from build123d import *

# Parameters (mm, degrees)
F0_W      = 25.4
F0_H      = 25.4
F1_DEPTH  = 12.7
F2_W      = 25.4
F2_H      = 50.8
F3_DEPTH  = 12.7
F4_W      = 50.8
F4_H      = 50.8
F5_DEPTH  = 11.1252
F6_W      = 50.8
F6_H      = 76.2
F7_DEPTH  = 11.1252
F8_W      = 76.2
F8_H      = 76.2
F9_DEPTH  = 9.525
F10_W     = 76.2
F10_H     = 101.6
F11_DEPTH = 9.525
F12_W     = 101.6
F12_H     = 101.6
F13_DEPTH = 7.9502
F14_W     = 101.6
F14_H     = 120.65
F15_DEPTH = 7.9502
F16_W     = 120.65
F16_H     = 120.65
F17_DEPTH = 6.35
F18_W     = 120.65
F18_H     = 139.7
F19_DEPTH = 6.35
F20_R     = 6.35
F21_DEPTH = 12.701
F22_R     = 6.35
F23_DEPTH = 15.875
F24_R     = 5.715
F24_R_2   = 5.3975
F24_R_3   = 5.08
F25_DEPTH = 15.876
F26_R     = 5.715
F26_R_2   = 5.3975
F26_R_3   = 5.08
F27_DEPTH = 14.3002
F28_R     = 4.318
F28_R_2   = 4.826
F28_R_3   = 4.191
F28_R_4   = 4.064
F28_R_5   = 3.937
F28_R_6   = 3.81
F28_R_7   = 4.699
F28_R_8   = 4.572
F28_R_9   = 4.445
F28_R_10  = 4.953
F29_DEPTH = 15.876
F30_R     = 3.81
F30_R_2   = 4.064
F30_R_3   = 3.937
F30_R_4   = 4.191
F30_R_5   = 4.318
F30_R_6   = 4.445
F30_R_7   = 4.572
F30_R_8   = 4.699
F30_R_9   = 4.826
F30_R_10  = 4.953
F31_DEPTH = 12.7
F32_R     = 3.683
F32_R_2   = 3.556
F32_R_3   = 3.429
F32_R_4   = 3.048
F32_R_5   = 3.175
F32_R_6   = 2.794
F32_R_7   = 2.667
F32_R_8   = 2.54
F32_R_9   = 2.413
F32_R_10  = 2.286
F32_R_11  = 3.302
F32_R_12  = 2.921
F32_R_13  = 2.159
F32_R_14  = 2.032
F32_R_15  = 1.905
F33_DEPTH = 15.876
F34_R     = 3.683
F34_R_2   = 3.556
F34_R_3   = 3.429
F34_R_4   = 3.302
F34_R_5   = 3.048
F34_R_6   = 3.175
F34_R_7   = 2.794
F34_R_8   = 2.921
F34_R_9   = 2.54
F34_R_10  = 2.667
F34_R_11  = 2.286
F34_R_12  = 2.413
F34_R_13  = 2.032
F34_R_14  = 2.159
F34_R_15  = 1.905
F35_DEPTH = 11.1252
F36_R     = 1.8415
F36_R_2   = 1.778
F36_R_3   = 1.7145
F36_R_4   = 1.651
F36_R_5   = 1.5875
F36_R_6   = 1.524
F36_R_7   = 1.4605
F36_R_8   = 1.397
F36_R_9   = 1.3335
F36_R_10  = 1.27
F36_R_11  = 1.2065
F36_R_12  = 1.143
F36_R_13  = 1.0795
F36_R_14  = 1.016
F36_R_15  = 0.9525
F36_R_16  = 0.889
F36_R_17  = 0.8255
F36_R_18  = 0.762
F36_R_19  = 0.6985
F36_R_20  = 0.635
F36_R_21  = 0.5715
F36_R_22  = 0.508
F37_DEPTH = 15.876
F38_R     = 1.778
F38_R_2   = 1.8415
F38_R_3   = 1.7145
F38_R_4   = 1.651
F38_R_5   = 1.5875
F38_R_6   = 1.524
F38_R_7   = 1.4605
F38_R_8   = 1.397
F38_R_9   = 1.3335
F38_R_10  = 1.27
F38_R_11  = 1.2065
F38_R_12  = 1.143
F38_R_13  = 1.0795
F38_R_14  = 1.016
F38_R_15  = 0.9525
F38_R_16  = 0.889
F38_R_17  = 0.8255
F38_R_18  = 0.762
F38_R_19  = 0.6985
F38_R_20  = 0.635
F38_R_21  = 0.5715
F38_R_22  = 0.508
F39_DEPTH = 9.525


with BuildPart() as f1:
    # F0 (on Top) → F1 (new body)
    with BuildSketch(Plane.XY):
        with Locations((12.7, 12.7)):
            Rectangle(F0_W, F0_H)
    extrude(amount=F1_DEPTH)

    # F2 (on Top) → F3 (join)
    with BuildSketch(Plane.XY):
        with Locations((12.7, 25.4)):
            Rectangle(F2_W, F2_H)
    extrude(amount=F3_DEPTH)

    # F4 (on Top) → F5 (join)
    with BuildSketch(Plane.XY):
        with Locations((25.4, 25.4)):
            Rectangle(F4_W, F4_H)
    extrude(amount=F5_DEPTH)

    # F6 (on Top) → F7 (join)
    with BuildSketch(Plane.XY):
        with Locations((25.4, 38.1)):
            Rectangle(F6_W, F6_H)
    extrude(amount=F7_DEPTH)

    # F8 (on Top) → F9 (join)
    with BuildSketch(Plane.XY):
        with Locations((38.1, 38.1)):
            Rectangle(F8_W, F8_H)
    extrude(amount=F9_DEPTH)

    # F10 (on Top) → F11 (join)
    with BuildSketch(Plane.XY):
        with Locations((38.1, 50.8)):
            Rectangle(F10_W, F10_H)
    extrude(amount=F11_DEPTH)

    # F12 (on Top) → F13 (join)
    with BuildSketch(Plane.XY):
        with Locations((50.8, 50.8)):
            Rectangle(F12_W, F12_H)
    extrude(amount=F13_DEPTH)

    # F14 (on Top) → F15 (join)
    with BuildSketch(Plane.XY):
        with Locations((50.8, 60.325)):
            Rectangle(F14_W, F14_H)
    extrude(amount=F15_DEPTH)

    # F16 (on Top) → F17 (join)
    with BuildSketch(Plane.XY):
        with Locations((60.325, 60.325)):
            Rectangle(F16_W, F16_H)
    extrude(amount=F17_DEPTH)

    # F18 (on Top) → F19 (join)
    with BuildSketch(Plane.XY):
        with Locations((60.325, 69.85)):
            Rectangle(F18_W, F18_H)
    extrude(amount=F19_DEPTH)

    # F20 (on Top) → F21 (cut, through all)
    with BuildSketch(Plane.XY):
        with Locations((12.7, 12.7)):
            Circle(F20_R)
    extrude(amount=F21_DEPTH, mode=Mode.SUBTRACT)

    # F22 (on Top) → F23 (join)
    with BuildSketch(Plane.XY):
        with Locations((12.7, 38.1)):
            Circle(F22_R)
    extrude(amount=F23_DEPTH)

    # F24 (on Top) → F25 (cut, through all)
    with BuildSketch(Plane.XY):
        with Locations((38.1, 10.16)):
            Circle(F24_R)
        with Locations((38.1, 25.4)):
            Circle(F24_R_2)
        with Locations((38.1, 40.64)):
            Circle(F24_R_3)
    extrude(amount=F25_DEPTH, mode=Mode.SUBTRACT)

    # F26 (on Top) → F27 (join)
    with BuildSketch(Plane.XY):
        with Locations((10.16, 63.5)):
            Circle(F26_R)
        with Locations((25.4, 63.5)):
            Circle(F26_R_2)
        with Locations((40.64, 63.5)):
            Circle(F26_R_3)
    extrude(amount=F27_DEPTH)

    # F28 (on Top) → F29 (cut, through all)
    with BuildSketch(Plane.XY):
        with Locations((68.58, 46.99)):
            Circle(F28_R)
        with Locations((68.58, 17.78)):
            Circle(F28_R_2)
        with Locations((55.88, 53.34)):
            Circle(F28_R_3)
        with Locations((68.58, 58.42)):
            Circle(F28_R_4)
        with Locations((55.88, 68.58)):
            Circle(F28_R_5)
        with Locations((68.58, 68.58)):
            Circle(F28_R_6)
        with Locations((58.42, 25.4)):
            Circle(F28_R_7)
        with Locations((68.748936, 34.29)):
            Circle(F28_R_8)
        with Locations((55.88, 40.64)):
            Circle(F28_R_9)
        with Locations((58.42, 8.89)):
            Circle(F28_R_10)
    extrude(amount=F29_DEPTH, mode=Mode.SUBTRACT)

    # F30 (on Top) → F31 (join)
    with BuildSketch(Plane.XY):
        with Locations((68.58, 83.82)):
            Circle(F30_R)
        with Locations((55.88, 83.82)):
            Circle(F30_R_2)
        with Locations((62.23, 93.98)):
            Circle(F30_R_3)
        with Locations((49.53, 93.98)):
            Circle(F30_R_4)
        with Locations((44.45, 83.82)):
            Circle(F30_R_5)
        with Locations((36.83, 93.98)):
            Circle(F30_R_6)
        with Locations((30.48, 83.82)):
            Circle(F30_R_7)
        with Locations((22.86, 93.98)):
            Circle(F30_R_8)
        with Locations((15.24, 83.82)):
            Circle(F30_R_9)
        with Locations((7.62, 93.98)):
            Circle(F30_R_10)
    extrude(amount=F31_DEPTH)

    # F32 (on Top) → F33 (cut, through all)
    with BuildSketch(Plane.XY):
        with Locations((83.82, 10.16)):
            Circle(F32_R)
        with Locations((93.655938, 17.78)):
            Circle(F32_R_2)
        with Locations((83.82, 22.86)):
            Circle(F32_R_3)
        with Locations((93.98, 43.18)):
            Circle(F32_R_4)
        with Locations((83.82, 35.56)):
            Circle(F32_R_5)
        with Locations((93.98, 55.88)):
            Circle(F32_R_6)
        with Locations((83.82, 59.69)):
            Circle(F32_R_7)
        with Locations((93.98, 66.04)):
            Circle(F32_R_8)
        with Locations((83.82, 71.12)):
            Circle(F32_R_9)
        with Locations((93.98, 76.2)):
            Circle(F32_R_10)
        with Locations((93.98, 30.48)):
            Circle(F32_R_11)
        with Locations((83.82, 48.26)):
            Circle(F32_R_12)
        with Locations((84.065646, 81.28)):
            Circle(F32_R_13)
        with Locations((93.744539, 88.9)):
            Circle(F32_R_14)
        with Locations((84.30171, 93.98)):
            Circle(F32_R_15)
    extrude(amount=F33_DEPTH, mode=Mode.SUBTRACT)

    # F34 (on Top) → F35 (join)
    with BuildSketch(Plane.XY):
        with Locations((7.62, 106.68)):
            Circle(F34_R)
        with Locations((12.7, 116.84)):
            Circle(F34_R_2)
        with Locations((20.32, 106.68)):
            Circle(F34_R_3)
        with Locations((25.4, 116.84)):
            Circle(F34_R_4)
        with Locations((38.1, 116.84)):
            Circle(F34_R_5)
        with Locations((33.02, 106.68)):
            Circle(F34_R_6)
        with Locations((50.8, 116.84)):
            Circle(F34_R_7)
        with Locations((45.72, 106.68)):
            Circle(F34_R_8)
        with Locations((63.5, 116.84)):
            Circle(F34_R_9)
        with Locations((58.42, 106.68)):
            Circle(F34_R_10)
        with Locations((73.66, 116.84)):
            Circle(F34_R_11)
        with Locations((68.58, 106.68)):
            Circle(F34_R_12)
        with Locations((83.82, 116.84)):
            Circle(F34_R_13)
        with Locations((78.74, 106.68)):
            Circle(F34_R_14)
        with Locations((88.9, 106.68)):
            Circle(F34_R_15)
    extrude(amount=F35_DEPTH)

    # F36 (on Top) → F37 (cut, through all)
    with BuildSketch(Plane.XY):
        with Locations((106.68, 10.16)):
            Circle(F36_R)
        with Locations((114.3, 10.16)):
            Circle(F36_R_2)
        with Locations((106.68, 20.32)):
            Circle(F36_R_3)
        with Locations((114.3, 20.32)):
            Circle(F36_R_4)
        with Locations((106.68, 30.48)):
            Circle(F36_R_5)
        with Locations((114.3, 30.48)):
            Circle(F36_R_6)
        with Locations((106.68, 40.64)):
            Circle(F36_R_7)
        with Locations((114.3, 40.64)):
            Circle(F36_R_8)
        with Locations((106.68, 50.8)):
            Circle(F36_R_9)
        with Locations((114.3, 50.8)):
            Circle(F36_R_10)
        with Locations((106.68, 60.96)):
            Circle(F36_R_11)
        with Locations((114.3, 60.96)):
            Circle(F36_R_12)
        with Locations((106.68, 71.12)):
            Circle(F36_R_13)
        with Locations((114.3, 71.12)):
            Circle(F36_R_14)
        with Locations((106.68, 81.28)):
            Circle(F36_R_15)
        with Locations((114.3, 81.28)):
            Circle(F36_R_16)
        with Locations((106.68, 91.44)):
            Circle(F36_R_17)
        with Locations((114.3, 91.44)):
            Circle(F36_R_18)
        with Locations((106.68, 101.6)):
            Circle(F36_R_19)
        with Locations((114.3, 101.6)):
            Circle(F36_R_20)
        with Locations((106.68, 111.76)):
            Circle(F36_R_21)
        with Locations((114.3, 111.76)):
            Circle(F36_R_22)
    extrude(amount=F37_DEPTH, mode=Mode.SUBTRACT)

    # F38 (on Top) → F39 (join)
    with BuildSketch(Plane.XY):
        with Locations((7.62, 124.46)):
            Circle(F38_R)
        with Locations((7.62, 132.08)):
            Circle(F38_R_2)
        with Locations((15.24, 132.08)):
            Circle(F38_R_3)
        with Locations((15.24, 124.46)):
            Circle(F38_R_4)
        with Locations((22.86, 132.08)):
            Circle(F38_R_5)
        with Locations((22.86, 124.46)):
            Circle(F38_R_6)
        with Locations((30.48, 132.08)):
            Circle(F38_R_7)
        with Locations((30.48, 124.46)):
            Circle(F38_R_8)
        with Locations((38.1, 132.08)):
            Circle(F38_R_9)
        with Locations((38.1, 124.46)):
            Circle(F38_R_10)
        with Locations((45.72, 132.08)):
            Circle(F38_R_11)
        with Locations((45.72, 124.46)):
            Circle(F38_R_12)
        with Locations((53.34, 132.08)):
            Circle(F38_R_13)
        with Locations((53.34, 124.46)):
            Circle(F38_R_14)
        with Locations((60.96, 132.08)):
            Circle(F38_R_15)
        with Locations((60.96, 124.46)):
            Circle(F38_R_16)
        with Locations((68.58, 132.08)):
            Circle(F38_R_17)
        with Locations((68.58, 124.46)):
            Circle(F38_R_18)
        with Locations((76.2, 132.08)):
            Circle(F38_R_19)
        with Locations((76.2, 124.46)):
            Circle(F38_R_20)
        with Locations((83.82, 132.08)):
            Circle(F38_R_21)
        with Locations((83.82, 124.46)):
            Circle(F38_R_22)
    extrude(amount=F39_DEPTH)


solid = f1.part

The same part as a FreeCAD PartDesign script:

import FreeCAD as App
import Part
import Sketcher

V = App.Vector
Q = App.Units.Quantity

doc = App.newDocument("Part")
body = doc.addObject("PartDesign::Body", "Body")

# Sketch on XY plane
sketch1 = doc.addObject("Sketcher::SketchObject", "Sketch")
body.addObject(sketch1)
sketch1.AttachmentSupport = (doc.XY_Plane, [""])
sketch1.MapMode = "FlatFace"
sketch1.addGeometry([
    Part.LineSegment(V(0, 25.4, 0), V(0, 0, 0)),
    Part.LineSegment(V(0, 0, 0), V(25.4, 0, 0)),
    Part.LineSegment(V(25.4, 0, 0), V(25.4, 25.4, 0)),
    Part.LineSegment(V(25.4, 25.4, 0), V(0, 25.4, 0)),
], False)
sketch1.addConstraint([
    Sketcher.Constraint("Coincident", 0, 2, 1, 1),
    Sketcher.Constraint("Coincident", 1, 2, 2, 1),
    Sketcher.Constraint("Coincident", 2, 2, 3, 1),
    Sketcher.Constraint("Coincident", 3, 2, 0, 1),
    Sketcher.Constraint("Vertical", 0),
    Sketcher.Constraint("Horizontal", 1),
    Sketcher.Constraint("Vertical", 2),
    Sketcher.Constraint("Horizontal", 3),
    Sketcher.Constraint("Coincident", 0, 2, -1, 1),
    Sketcher.Constraint("Equal", 3, 0),
    Sketcher.Constraint("DistanceX", 1, 1, 1, 2, Q("1 in")),
])
pad1 = doc.addObject("PartDesign::Pad", "Pad")
body.addObject(pad1)
pad1.Profile = sketch1
pad1.Length = Q("0.5 in")

# Sketch on XY plane
sketch2 = doc.addObject("Sketcher::SketchObject", "Sketch001")
body.addObject(sketch2)
sketch2.AttachmentSupport = (doc.XY_Plane, [""])
sketch2.MapMode = "FlatFace"
sketch2.addGeometry([
    Part.LineSegment(V(0, 50.8, 0), V(0, 0, 0)),
    Part.LineSegment(V(0, 0, 0), V(25.4, 0, 0)),
    Part.LineSegment(V(25.4, 0, 0), V(25.4, 50.8, 0)),
    Part.LineSegment(V(25.4, 50.8, 0), V(0, 50.8, 0)),
], False)
sketch2.addConstraint([
    Sketcher.Constraint("Coincident", 0, 2, 1, 1),
    Sketcher.Constraint("Coincident", 1, 2, 2, 1),
    Sketcher.Constraint("Coincident", 2, 2, 3, 1),
    Sketcher.Constraint("Coincident", 3, 2, 0, 1),
    Sketcher.Constraint("Vertical", 0),
    Sketcher.Constraint("Horizontal", 1),
    Sketcher.Constraint("Vertical", 2),
    Sketcher.Constraint("Horizontal", 3),
    Sketcher.Constraint("Coincident", 0, 2, -1, 1),
    Sketcher.Constraint("DistanceX", 1, 1, 1, 2, Q("1 in")),
    Sketcher.Constraint("DistanceY", 0, 2, 0, 1, Q("2 in")),
])
pad2 = doc.addObject("PartDesign::Pad", "Pad001")
body.addObject(pad2)
pad2.Profile = sketch2
pad2.Length = Q("0.5 in")

# Sketch on XY plane
sketch3 = doc.addObject("Sketcher::SketchObject", "Sketch002")
body.addObject(sketch3)
sketch3.AttachmentSupport = (doc.XY_Plane, [""])
sketch3.MapMode = "FlatFace"
sketch3.addGeometry([
    Part.LineSegment(V(0, 50.8, 0), V(0, 0, 0)),
    Part.LineSegment(V(0, 0, 0), V(50.8, 0, 0)),
    Part.LineSegment(V(50.8, 0, 0), V(50.8, 50.8, 0)),
    Part.LineSegment(V(50.8, 50.8, 0), V(0, 50.8, 0)),
], False)
sketch3.addConstraint([
    Sketcher.Constraint("Coincident", 0, 2, 1, 1),
    Sketcher.Constraint("Coincident", 1, 2, 2, 1),
    Sketcher.Constraint("Coincident", 2, 2, 3, 1),
    Sketcher.Constraint("Coincident", 3, 2, 0, 1),
    Sketcher.Constraint("Vertical", 0),
    Sketcher.Constraint("Horizontal", 1),
    Sketcher.Constraint("Vertical", 2),
    Sketcher.Constraint("Horizontal", 3),
    Sketcher.Constraint("Coincident", 0, 2, -1, 1),
    Sketcher.Constraint("Equal", 3, 0),
    Sketcher.Constraint("DistanceX", 1, 1, 1, 2, Q("2 in")),
])
pad3 = doc.addObject("PartDesign::Pad", "Pad002")
body.addObject(pad3)
pad3.Profile = sketch3
pad3.Length = Q("0.438 in")

# Sketch on XY plane
sketch4 = doc.addObject("Sketcher::SketchObject", "Sketch003")
body.addObject(sketch4)
sketch4.AttachmentSupport = (doc.XY_Plane, [""])
sketch4.MapMode = "FlatFace"
sketch4.addGeometry([
    Part.LineSegment(V(0, 76.2, 0), V(0, 0, 0)),
    Part.LineSegment(V(0, 0, 0), V(50.8, 0, 0)),
    Part.LineSegment(V(50.8, 0, 0), V(50.8, 76.2, 0)),
    Part.LineSegment(V(50.8, 76.2, 0), V(0, 76.2, 0)),
], False)
sketch4.addConstraint([
    Sketcher.Constraint("Coincident", 0, 2, 1, 1),
    Sketcher.Constraint("Coincident", 1, 2, 2, 1),
    Sketcher.Constraint("Coincident", 2, 2, 3, 1),
    Sketcher.Constraint("Coincident", 3, 2, 0, 1),
    Sketcher.Constraint("Vertical", 0),
    Sketcher.Constraint("Horizontal", 1),
    Sketcher.Constraint("Vertical", 2),
    Sketcher.Constraint("Horizontal", 3),
    Sketcher.Constraint("Coincident", 0, 2, -1, 1),
    Sketcher.Constraint("DistanceX", 1, 1, 1, 2, Q("2 in")),
    Sketcher.Constraint("DistanceY", 0, 2, 0, 1, Q("3 in")),
])
pad4 = doc.addObject("PartDesign::Pad", "Pad003")
body.addObject(pad4)
pad4.Profile = sketch4
pad4.Length = Q("0.438 in")

# Sketch on XY plane
sketch5 = doc.addObject("Sketcher::SketchObject", "Sketch004")
body.addObject(sketch5)
sketch5.AttachmentSupport = (doc.XY_Plane, [""])
sketch5.MapMode = "FlatFace"
sketch5.addGeometry([
    Part.LineSegment(V(0, 76.2, 0), V(0, 0, 0)),
    Part.LineSegment(V(0, 0, 0), V(76.2, 0, 0)),
    Part.LineSegment(V(76.2, 0, 0), V(76.2, 76.2, 0)),
    Part.LineSegment(V(76.2, 76.2, 0), V(0, 76.2, 0)),
], False)
sketch5.addConstraint([
    Sketcher.Constraint("Coincident", 0, 2, 1, 1),
    Sketcher.Constraint("Coincident", 1, 2, 2, 1),
    Sketcher.Constraint("Coincident", 2, 2, 3, 1),
    Sketcher.Constraint("Coincident", 3, 2, 0, 1),
    Sketcher.Constraint("Vertical", 0),
    Sketcher.Constraint("Horizontal", 1),
    Sketcher.Constraint("Vertical", 2),
    Sketcher.Constraint("Horizontal", 3),
    Sketcher.Constraint("Coincident", 0, 2, -1, 1),
    Sketcher.Constraint("Equal", 3, 0),
    Sketcher.Constraint("DistanceX", 1, 1, 1, 2, Q("3 in")),
])
pad5 = doc.addObject("PartDesign::Pad", "Pad004")
body.addObject(pad5)
pad5.Profile = sketch5
pad5.Length = Q("0.375 in")

# Sketch on XY plane
sketch6 = doc.addObject("Sketcher::SketchObject", "Sketch005")
body.addObject(sketch6)
sketch6.AttachmentSupport = (doc.XY_Plane, [""])
sketch6.MapMode = "FlatFace"
sketch6.addGeometry([
    Part.LineSegment(V(0, 101.6, 0), V(0, 0, 0)),
    Part.LineSegment(V(0, 0, 0), V(76.2, 0, 0)),
    Part.LineSegment(V(76.2, 0, 0), V(76.2, 101.6, 0)),
    Part.LineSegment(V(76.2, 101.6, 0), V(0, 101.6, 0)),
], False)
sketch6.addConstraint([
    Sketcher.Constraint("Coincident", 0, 2, 1, 1),
    Sketcher.Constraint("Coincident", 1, 2, 2, 1),
    Sketcher.Constraint("Coincident", 2, 2, 3, 1),
    Sketcher.Constraint("Coincident", 3, 2, 0, 1),
    Sketcher.Constraint("Vertical", 0),
    Sketcher.Constraint("Horizontal", 1),
    Sketcher.Constraint("Vertical", 2),
    Sketcher.Constraint("Horizontal", 3),
    Sketcher.Constraint("Coincident", 0, 2, -1, 1),
    Sketcher.Constraint("DistanceX", 1, 1, 1, 2, Q("3 in")),
    Sketcher.Constraint("DistanceY", 0, 2, 0, 1, Q("4 in")),
])
pad6 = doc.addObject("PartDesign::Pad", "Pad005")
body.addObject(pad6)
pad6.Profile = sketch6
pad6.Length = Q("0.375 in")

# Sketch on XY plane
sketch7 = doc.addObject("Sketcher::SketchObject", "Sketch006")
body.addObject(sketch7)
sketch7.AttachmentSupport = (doc.XY_Plane, [""])
sketch7.MapMode = "FlatFace"
sketch7.addGeometry([
    Part.LineSegment(V(0, 101.6, 0), V(0, 0, 0)),
    Part.LineSegment(V(0, 0, 0), V(101.6, 0, 0)),
    Part.LineSegment(V(101.6, 0, 0), V(101.6, 101.6, 0)),
    Part.LineSegment(V(101.6, 101.6, 0), V(0, 101.6, 0)),
], False)
sketch7.addConstraint([
    Sketcher.Constraint("Coincident", 0, 2, 1, 1),
    Sketcher.Constraint("Coincident", 1, 2, 2, 1),
    Sketcher.Constraint("Coincident", 2, 2, 3, 1),
    Sketcher.Constraint("Coincident", 3, 2, 0, 1),
    Sketcher.Constraint("Vertical", 0),
    Sketcher.Constraint("Horizontal", 1),
    Sketcher.Constraint("Vertical", 2),
    Sketcher.Constraint("Horizontal", 3),
    Sketcher.Constraint("Coincident", 0, 2, -1, 1),
    Sketcher.Constraint("Equal", 3, 0),
    Sketcher.Constraint("DistanceX", 1, 1, 1, 2, Q("4 in")),
])
pad7 = doc.addObject("PartDesign::Pad", "Pad006")
body.addObject(pad7)
pad7.Profile = sketch7
pad7.Length = Q("0.313 in")

# Sketch on XY plane
sketch8 = doc.addObject("Sketcher::SketchObject", "Sketch007")
body.addObject(sketch8)
sketch8.AttachmentSupport = (doc.XY_Plane, [""])
sketch8.MapMode = "FlatFace"
sketch8.addGeometry([
    Part.LineSegment(V(0, 120.65, 0), V(0, 0, 0)),
    Part.LineSegment(V(0, 0, 0), V(101.6, 0, 0)),
    Part.LineSegment(V(101.6, 0, 0), V(101.6, 120.65, 0)),
    Part.LineSegment(V(101.6, 120.65, 0), V(0, 120.65, 0)),
], False)
sketch8.addConstraint([
    Sketcher.Constraint("Coincident", 0, 2, 1, 1),
    Sketcher.Constraint("Coincident", 1, 2, 2, 1),
    Sketcher.Constraint("Coincident", 2, 2, 3, 1),
    Sketcher.Constraint("Coincident", 3, 2, 0, 1),
    Sketcher.Constraint("Vertical", 0),
    Sketcher.Constraint("Horizontal", 1),
    Sketcher.Constraint("Vertical", 2),
    Sketcher.Constraint("Horizontal", 3),
    Sketcher.Constraint("Coincident", 0, 2, -1, 1),
    Sketcher.Constraint("DistanceX", 1, 1, 1, 2, Q("4 in")),
    Sketcher.Constraint("DistanceY", 0, 2, 0, 1, Q("4.75 in")),
])
pad8 = doc.addObject("PartDesign::Pad", "Pad007")
body.addObject(pad8)
pad8.Profile = sketch8
pad8.Length = Q("0.313 in")

# Sketch on XY plane
sketch9 = doc.addObject("Sketcher::SketchObject", "Sketch008")
body.addObject(sketch9)
sketch9.AttachmentSupport = (doc.XY_Plane, [""])
sketch9.MapMode = "FlatFace"
sketch9.addGeometry([
    Part.LineSegment(V(0, 120.65, 0), V(0, 0, 0)),
    Part.LineSegment(V(0, 0, 0), V(120.65, 0, 0)),
    Part.LineSegment(V(120.65, 0, 0), V(120.65, 120.65, 0)),
    Part.LineSegment(V(120.65, 120.65, 0), V(0, 120.65, 0)),
], False)
sketch9.addConstraint([
    Sketcher.Constraint("Coincident", 0, 2, 1, 1),
    Sketcher.Constraint("Coincident", 1, 2, 2, 1),
    Sketcher.Constraint("Coincident", 2, 2, 3, 1),
    Sketcher.Constraint("Coincident", 3, 2, 0, 1),
    Sketcher.Constraint("Vertical", 0),
    Sketcher.Constraint("Horizontal", 1),
    Sketcher.Constraint("Vertical", 2),
    Sketcher.Constraint("Horizontal", 3),
    Sketcher.Constraint("Coincident", 0, 2, -1, 1),
    Sketcher.Constraint("Equal", 3, 0),
    Sketcher.Constraint("DistanceX", 1, 1, 1, 2, Q("4.75 in")),
])
pad9 = doc.addObject("PartDesign::Pad", "Pad008")
body.addObject(pad9)
pad9.Profile = sketch9
pad9.Length = Q("0.25 in")

# Sketch on XY plane
sketch10 = doc.addObject("Sketcher::SketchObject", "Sketch009")
body.addObject(sketch10)
sketch10.AttachmentSupport = (doc.XY_Plane, [""])
sketch10.MapMode = "FlatFace"
sketch10.addGeometry([
    Part.LineSegment(V(0, 139.7, 0), V(0, 0, 0)),
    Part.LineSegment(V(0, 0, 0), V(120.65, 0, 0)),
    Part.LineSegment(V(120.65, 0, 0), V(120.65, 139.7, 0)),
    Part.LineSegment(V(120.65, 139.7, 0), V(0, 139.7, 0)),
], False)
sketch10.addConstraint([
    Sketcher.Constraint("Coincident", 0, 2, 1, 1),
    Sketcher.Constraint("Coincident", 1, 2, 2, 1),
    Sketcher.Constraint("Coincident", 2, 2, 3, 1),
    Sketcher.Constraint("Coincident", 3, 2, 0, 1),
    Sketcher.Constraint("Vertical", 0),
    Sketcher.Constraint("Horizontal", 1),
    Sketcher.Constraint("Vertical", 2),
    Sketcher.Constraint("Horizontal", 3),
    Sketcher.Constraint("Coincident", 0, 2, -1, 1),
    Sketcher.Constraint("DistanceY", 0, 2, 0, 1, Q("5.5 in")),
    Sketcher.Constraint("DistanceX", 1, 1, 1, 2, Q("4.75 in")),
])
pad10 = doc.addObject("PartDesign::Pad", "Pad009")
body.addObject(pad10)
pad10.Profile = sketch10
pad10.Length = Q("0.25 in")

# Sketch on XY plane
sketch11 = doc.addObject("Sketcher::SketchObject", "Sketch010")
body.addObject(sketch11)
sketch11.AttachmentSupport = (doc.XY_Plane, [""])
sketch11.MapMode = "FlatFace"
sketch11.addGeometry(Part.Circle(V(12.7, 12.7, 0), V(0, 0, 1), 6.35), False)
sketch11.addConstraint([
    Sketcher.Constraint("Diameter", 0, Q("0.5 in")),
    Sketcher.Constraint("DistanceX", -1, 1, 0, 3, Q("0.5 in")),
    Sketcher.Constraint("DistanceY", -1, 1, 0, 3, Q("0.5 in")),
])
pocket1 = doc.addObject("PartDesign::Pocket", "Pocket")
body.addObject(pocket1)
pocket1.Profile = sketch11
pocket1.Type = "ThroughAll"
pocket1.Reversed = True

# Sketch on XY plane
sketch12 = doc.addObject("Sketcher::SketchObject", "Sketch011")
body.addObject(sketch12)
sketch12.AttachmentSupport = (doc.XY_Plane, [""])
sketch12.MapMode = "FlatFace"
sketch12.addGeometry(Part.Circle(V(12.7, 38.1, 0), V(0, 0, 1), 6.35), False)
sketch12.addConstraint([
    Sketcher.Constraint("Diameter", 0, Q("0.5 in")),
    Sketcher.Constraint("DistanceX", -1, 1, 0, 3, Q("0.5 in")),
    Sketcher.Constraint("DistanceY", -1, 1, 0, 3, Q("1.5 in")),
])
pad11 = doc.addObject("PartDesign::Pad", "Pad010")
body.addObject(pad11)
pad11.Profile = sketch12
pad11.Length = Q("0.625 in")

# Sketch on XY plane
sketch13 = doc.addObject("Sketcher::SketchObject", "Sketch012")
body.addObject(sketch13)
sketch13.AttachmentSupport = (doc.XY_Plane, [""])
sketch13.MapMode = "FlatFace"
sketch13.addGeometry([
    Part.Circle(V(38.1, 10.16, 0), V(0, 0, 1), 5.715),
    Part.Circle(V(38.1, 25.4, 0), V(0, 0, 1), 5.3975),
    Part.Circle(V(38.1, 40.64, 0), V(0, 0, 1), 5.08),
], False)
sketch13.addConstraint([
    Sketcher.Constraint("Vertical", 0, 3, 1, 3),
    Sketcher.Constraint("Vertical", 1, 3, 2, 3),
    Sketcher.Constraint("Diameter", 2, Q("0.4 in")),
    Sketcher.Constraint("Diameter", 0, Q("0.45 in")),
    Sketcher.Constraint("Diameter", 1, Q("0.425 in")),
    Sketcher.Constraint("DistanceY", -1, 1, 1, 3, Q("1 in")),
    Sketcher.Constraint("DistanceX", -1, 1, 0, 3, Q("1.5 in")),
    Sketcher.Constraint("DistanceY", -1, 1, 0, 3, Q("0.4 in")),
    Sketcher.Constraint("DistanceY", -1, 1, 2, 3, Q("1.6 in")),
])
pocket2 = doc.addObject("PartDesign::Pocket", "Pocket001")
body.addObject(pocket2)
pocket2.Profile = sketch13
pocket2.Type = "ThroughAll"
pocket2.Reversed = True

# Sketch on XY plane
sketch14 = doc.addObject("Sketcher::SketchObject", "Sketch013")
body.addObject(sketch14)
sketch14.AttachmentSupport = (doc.XY_Plane, [""])
sketch14.MapMode = "FlatFace"
sketch14.addGeometry([
    Part.Circle(V(10.16, 63.5, 0), V(0, 0, 1), 5.715),
    Part.Circle(V(25.4, 63.5, 0), V(0, 0, 1), 5.3975),
    Part.Circle(V(40.64, 63.5, 0), V(0, 0, 1), 5.08),
], False)
sketch14.addConstraint([
    Sketcher.Constraint("Horizontal", 0, 3, 1, 3),
    Sketcher.Constraint("Horizontal", 1, 3, 2, 3),
    Sketcher.Constraint("Diameter", 2, Q("0.4 in")),
    Sketcher.Constraint("Diameter", 0, Q("0.45 in")),
    Sketcher.Constraint("Diameter", 1, Q("0.425 in")),
    Sketcher.Constraint("DistanceX", -1, 1, 1, 3, Q("1 in")),
    Sketcher.Constraint("DistanceX", -1, 1, 0, 3, Q("0.4 in")),
    Sketcher.Constraint("DistanceY", -1, 1, 0, 3, Q("2.5 in")),
    Sketcher.Constraint("DistanceX", -1, 1, 2, 3, Q("1.6 in")),
])
pad12 = doc.addObject("PartDesign::Pad", "Pad011")
body.addObject(pad12)
pad12.Profile = sketch14
pad12.Length = Q("0.563 in")

# Sketch on XY plane
sketch15 = doc.addObject("Sketcher::SketchObject", "Sketch014")
body.addObject(sketch15)
sketch15.AttachmentSupport = (doc.XY_Plane, [""])
sketch15.MapMode = "FlatFace"
sketch15.addGeometry([
    Part.Circle(V(68.58, 46.99, 0), V(0, 0, 1), 4.318),  # 0
    Part.Circle(V(68.58, 17.78, 0), V(0, 0, 1), 4.826),  # 1
    Part.Circle(V(55.88, 53.34, 0), V(0, 0, 1), 4.191),  # 2
    Part.Circle(V(68.58, 58.42, 0), V(0, 0, 1), 4.064),  # 3
    Part.Circle(V(55.88, 68.58, 0), V(0, 0, 1), 3.937),  # 4
    Part.Circle(V(68.58, 68.58, 0), V(0, 0, 1), 3.81),  # 5
    Part.Circle(V(58.42, 25.4, 0), V(0, 0, 1), 4.699),  # 6
    Part.Circle(V(68.748936, 34.29, 0), V(0, 0, 1), 4.572),  # 7
    Part.Circle(V(55.88, 40.64, 0), V(0, 0, 1), 4.445),  # 8
    Part.Circle(V(58.42, 8.89, 0), V(0, 0, 1), 4.953),  # 9
], False)
sketch15.addConstraint([
    Sketcher.Constraint("Horizontal", 4, 3, 5, 3),
    Sketcher.Constraint("Vertical", 0, 3, 1, 3),
    Sketcher.Constraint("Vertical", 1, 3, 3, 3),
    Sketcher.Constraint("Vertical", 2, 3, 4, 3),
    Sketcher.Constraint("Vertical", 3, 3, 5, 3),
    Sketcher.Constraint("Vertical", 4, 3, 8, 3),
    Sketcher.Constraint("Vertical", 6, 3, 9, 3),
    Sketcher.Constraint("Diameter", 5, Q("0.3 in")),
    Sketcher.Constraint("Diameter", 0, Q("0.34 in")),
    Sketcher.Constraint("Diameter", 1, Q("0.38 in")),
    Sketcher.Constraint("Diameter", 2, Q("0.33 in")),
    Sketcher.Constraint("Diameter", 3, Q("0.32 in")),
    Sketcher.Constraint("Diameter", 4, Q("0.31 in")),
    Sketcher.Constraint("Diameter", 6, Q("0.37 in")),
    Sketcher.Constraint("Diameter", 7, Q("0.36 in")),
    Sketcher.Constraint("Diameter", 8, Q("0.35 in")),
    Sketcher.Constraint("Diameter", 9, Q("0.39 in")),
    Sketcher.Constraint("DistanceY", -1, 1, 6, 3, Q("1 in")),
    Sketcher.Constraint("DistanceY", 1, 3, 4, 3, Q("2 in")),
    Sketcher.Constraint("DistanceY", 9, 3, 7, 3, Q("1 in")),
    Sketcher.Constraint("DistanceX", -1, 1, 0, 3, Q("2.7 in")),
    Sketcher.Constraint("DistanceY", -1, 1, 1, 3, Q("0.7 in")),
    Sketcher.Constraint("DistanceX", -1, 1, 2, 3, Q("2.2 in")),
    Sketcher.Constraint("DistanceY", -1, 1, 2, 3, Q("2.1 in")),
    Sketcher.Constraint("DistanceY", -1, 1, 3, 3, Q("2.3 in")),
    Sketcher.Constraint("DistanceX", -1, 1, 6, 3, Q("2.3 in")),
    Sketcher.Constraint("DistanceY", -1, 1, 8, 3, Q("1.6 in")),
    Sketcher.Constraint("DistanceY", 7, 3, 0, 3, Q("0.5 in")),
    Sketcher.Constraint("DistanceY", -1, 1, 0, 3, Q("1.85 in")),
    Sketcher.Constraint("DistanceX", -1, 1, 7, 3, 68.748936),
])
pocket3 = doc.addObject("PartDesign::Pocket", "Pocket002")
body.addObject(pocket3)
pocket3.Profile = sketch15
pocket3.Type = "ThroughAll"
pocket3.Reversed = True

# Sketch on XY plane
sketch16 = doc.addObject("Sketcher::SketchObject", "Sketch015")
body.addObject(sketch16)
sketch16.AttachmentSupport = (doc.XY_Plane, [""])
sketch16.MapMode = "FlatFace"
sketch16.addGeometry([
    Part.Circle(V(68.58, 83.82, 0), V(0, 0, 1), 3.81),  # 0
    Part.Circle(V(55.88, 83.82, 0), V(0, 0, 1), 4.064),  # 1
    Part.Circle(V(62.23, 93.98, 0), V(0, 0, 1), 3.937),  # 2
    Part.Circle(V(49.53, 93.98, 0), V(0, 0, 1), 4.191),  # 3
    Part.Circle(V(44.45, 83.82, 0), V(0, 0, 1), 4.318),  # 4
    Part.Circle(V(36.83, 93.98, 0), V(0, 0, 1), 4.445),  # 5
    Part.Circle(V(30.48, 83.82, 0), V(0, 0, 1), 4.572),  # 6
    Part.Circle(V(22.86, 93.98, 0), V(0, 0, 1), 4.699),  # 7
    Part.Circle(V(15.24, 83.82, 0), V(0, 0, 1), 4.826),  # 8
    Part.Circle(V(7.62, 93.98, 0), V(0, 0, 1), 4.953),  # 9
], False)
sketch16.addConstraint([
    Sketcher.Constraint("Horizontal", 0, 3, 1, 3),
    Sketcher.Constraint("Horizontal", 2, 3, 3, 3),
    Sketcher.Constraint("Horizontal", 1, 3, 4, 3),
    Sketcher.Constraint("Horizontal", 3, 3, 5, 3),
    Sketcher.Constraint("Horizontal", 4, 3, 6, 3),
    Sketcher.Constraint("Horizontal", 5, 3, 7, 3),
    Sketcher.Constraint("Horizontal", 6, 3, 8, 3),
    Sketcher.Constraint("Horizontal", 7, 3, 9, 3),
    Sketcher.Constraint("Diameter", 0, Q("0.3 in")),
    Sketcher.Constraint("Diameter", 1, Q("0.32 in")),
    Sketcher.Constraint("Diameter", 2, Q("0.31 in")),
    Sketcher.Constraint("Diameter", 3, Q("0.33 in")),
    Sketcher.Constraint("Diameter", 4, Q("0.34 in")),
    Sketcher.Constraint("Diameter", 5, Q("0.35 in")),
    Sketcher.Constraint("Diameter", 6, Q("0.36 in")),
    Sketcher.Constraint("Diameter", 7, Q("0.37 in")),
    Sketcher.Constraint("Diameter", 8, Q("0.38 in")),
    Sketcher.Constraint("Diameter", 9, Q("0.39 in")),
    Sketcher.Constraint("DistanceX", 5, 3, 2, 3, Q("1 in")),
    Sketcher.Constraint("DistanceX", 6, 3, 1, 3, Q("1 in")),
    Sketcher.Constraint("DistanceX", -1, 1, 0, 3, Q("2.7 in")),
    Sketcher.Constraint("DistanceY", -1, 1, 0, 3, Q("3.3 in")),
    Sketcher.Constraint("DistanceX", -1, 1, 1, 3, Q("2.2 in")),
    Sketcher.Constraint("DistanceY", -1, 1, 2, 3, Q("3.7 in")),
    Sketcher.Constraint("DistanceX", -1, 1, 7, 3, Q("0.9 in")),
    Sketcher.Constraint("DistanceX", -1, 1, 8, 3, Q("0.6 in")),
    Sketcher.Constraint("DistanceX", -1, 1, 9, 3, Q("0.3 in")),
    Sketcher.Constraint("DistanceX", 3, 3, 2, 3, Q("0.5 in")),
    Sketcher.Constraint("DistanceX", 4, 3, 3, 3, Q("0.2 in")),
    Sketcher.Constraint("DistanceX", -1, 1, 2, 3, Q("2.45 in")),
])
pad13 = doc.addObject("PartDesign::Pad", "Pad012")
body.addObject(pad13)
pad13.Profile = sketch16
pad13.Length = Q("0.5 in")

# Sketch on XY plane
sketch17 = doc.addObject("Sketcher::SketchObject", "Sketch016")
body.addObject(sketch17)
sketch17.AttachmentSupport = (doc.XY_Plane, [""])
sketch17.MapMode = "FlatFace"
sketch17.addGeometry([
    Part.Circle(V(83.82, 10.16, 0), V(0, 0, 1), 3.683),  # 0
    Part.Circle(V(93.655938, 17.78, 0), V(0, 0, 1), 3.556),  # 1
    Part.Circle(V(83.82, 22.86, 0), V(0, 0, 1), 3.429),  # 2
    Part.Circle(V(93.98, 43.18, 0), V(0, 0, 1), 3.048),  # 3
    Part.Circle(V(83.82, 35.56, 0), V(0, 0, 1), 3.175),  # 4
    Part.Circle(V(93.98, 55.88, 0), V(0, 0, 1), 2.794),  # 5
    Part.Circle(V(83.82, 59.69, 0), V(0, 0, 1), 2.667),  # 6
    Part.Circle(V(93.98, 66.04, 0), V(0, 0, 1), 2.54),  # 7
    Part.Circle(V(83.82, 71.12, 0), V(0, 0, 1), 2.413),  # 8
    Part.Circle(V(93.98, 76.2, 0), V(0, 0, 1), 2.286),  # 9
    Part.Circle(V(93.98, 30.48, 0), V(0, 0, 1), 3.302),  # 10
    Part.Circle(V(83.82, 48.26, 0), V(0, 0, 1), 2.921),  # 11
    Part.Circle(V(84.065646, 81.28, 0), V(0, 0, 1), 2.159),  # 12
    Part.Circle(V(93.744539, 88.9, 0), V(0, 0, 1), 2.032),  # 13
    Part.Circle(V(84.30171, 93.98, 0), V(0, 0, 1), 1.905),  # 14
], False)
sketch17.addConstraint([
    Sketcher.Constraint("Vertical", 0, 3, 2, 3),
    Sketcher.Constraint("Vertical", 2, 3, 4, 3),
    Sketcher.Constraint("Vertical", 3, 3, 5, 3),
    Sketcher.Constraint("Vertical", 4, 3, 6, 3),
    Sketcher.Constraint("Vertical", 5, 3, 7, 3),
    Sketcher.Constraint("Vertical", 6, 3, 8, 3),
    Sketcher.Constraint("Vertical", 7, 3, 9, 3),
    Sketcher.Constraint("Vertical", 9, 3, 10, 3),
    Sketcher.Constraint("Vertical", 8, 3, 11, 3),
    Sketcher.Constraint("Diameter", 7, Q("0.2 in")),
    Sketcher.Constraint("Diameter", 0, Q("0.29 in")),
    Sketcher.Constraint("Diameter", 1, Q("0.28 in")),
    Sketcher.Constraint("Diameter", 2, Q("0.27 in")),
    Sketcher.Constraint("Diameter", 3, Q("0.24 in")),
    Sketcher.Constraint("Diameter", 4, Q("0.25 in")),
    Sketcher.Constraint("Diameter", 5, Q("0.22 in")),
    Sketcher.Constraint("Diameter", 6, Q("0.21 in")),
    Sketcher.Constraint("Diameter", 8, Q("0.19 in")),
    Sketcher.Constraint("Diameter", 9, Q("0.18 in")),
    Sketcher.Constraint("Diameter", 10, Q("0.26 in")),
    Sketcher.Constraint("Diameter", 11, Q("0.23 in")),
    Sketcher.Constraint("Diameter", 12, Q("0.17 in")),
    Sketcher.Constraint("Diameter", 13, Q("0.16 in")),
    Sketcher.Constraint("Diameter", 14, Q("0.15 in")),
    Sketcher.Constraint("DistanceY", -1, 1, 9, 3, Q("3 in")),
    Sketcher.Constraint("DistanceY", 1, 3, 3, 3, Q("1 in")),
    Sketcher.Constraint("DistanceY", 0, 3, 4, 3, Q("1 in")),
    Sketcher.Constraint("DistanceY", 5, 3, 12, 3, Q("1 in")),
    Sketcher.Constraint("DistanceX", -1, 1, 0, 3, Q("3.3 in")),
    Sketcher.Constraint("DistanceY", -1, 1, 0, 3, Q("0.4 in")),
    Sketcher.Constraint("DistanceY", -1, 1, 1, 3, Q("0.7 in")),
    Sketcher.Constraint("DistanceY", -1, 1, 2, 3, Q("0.9 in")),
    Sketcher.Constraint("DistanceX", -1, 1, 3, 3, Q("3.7 in")),
    Sketcher.Constraint("DistanceY", -1, 1, 5, 3, Q("2.2 in")),
    Sketcher.Constraint("DistanceY", -1, 1, 7, 3, Q("2.6 in")),
    Sketcher.Constraint("DistanceY", -1, 1, 8, 3, Q("2.8 in")),
    Sketcher.Constraint("DistanceY", -1, 1, 10, 3, Q("1.2 in")),
    Sketcher.Constraint("DistanceY", -1, 1, 11, 3, Q("1.9 in")),
    Sketcher.Constraint("DistanceY", -1, 1, 13, 3, Q("3.5 in")),
    Sketcher.Constraint("DistanceY", -1, 1, 14, 3, Q("3.7 in")),
    Sketcher.Constraint("DistanceY", -1, 1, 6, 3, Q("2.35 in")),
    Sketcher.Constraint("DistanceX", -1, 1, 1, 3, 93.655938),
    Sketcher.Constraint("DistanceX", -1, 1, 13, 3, 93.744539),
    Sketcher.Constraint("DistanceX", -1, 1, 14, 3, 84.30171),
    Sketcher.Constraint("DistanceX", -1, 1, 12, 3, 84.065646),
])
pocket4 = doc.addObject("PartDesign::Pocket", "Pocket003")
body.addObject(pocket4)
pocket4.Profile = sketch17
pocket4.Type = "ThroughAll"
pocket4.Reversed = True

# Sketch on XY plane
sketch18 = doc.addObject("Sketcher::SketchObject", "Sketch017")
body.addObject(sketch18)
sketch18.AttachmentSupport = (doc.XY_Plane, [""])
sketch18.MapMode = "FlatFace"
sketch18.addGeometry([
    Part.Circle(V(7.62, 106.68, 0), V(0, 0, 1), 3.683),  # 0
    Part.Circle(V(12.7, 116.84, 0), V(0, 0, 1), 3.556),  # 1
    Part.Circle(V(20.32, 106.68, 0), V(0, 0, 1), 3.429),  # 2
    Part.Circle(V(25.4, 116.84, 0), V(0, 0, 1), 3.302),  # 3
    Part.Circle(V(38.1, 116.84, 0), V(0, 0, 1), 3.048),  # 4
    Part.Circle(V(33.02, 106.68, 0), V(0, 0, 1), 3.175),  # 5
    Part.Circle(V(50.8, 116.84, 0), V(0, 0, 1), 2.794),  # 6
    Part.Circle(V(45.72, 106.68, 0), V(0, 0, 1), 2.921),  # 7
    Part.Circle(V(63.5, 116.84, 0), V(0, 0, 1), 2.54),  # 8
    Part.Circle(V(58.42, 106.68, 0), V(0, 0, 1), 2.667),  # 9
    Part.Circle(V(73.66, 116.84, 0), V(0, 0, 1), 2.286),  # 10
    Part.Circle(V(68.58, 106.68, 0), V(0, 0, 1), 2.413),  # 11
    Part.Circle(V(83.82, 116.84, 0), V(0, 0, 1), 2.032),  # 12
    Part.Circle(V(78.74, 106.68, 0), V(0, 0, 1), 2.159),  # 13
    Part.Circle(V(88.9, 106.68, 0), V(0, 0, 1), 1.905),  # 14
], False)
sketch18.addConstraint([
    Sketcher.Constraint("Horizontal", 0, 3, 2, 3),
    Sketcher.Constraint("Horizontal", 1, 3, 3, 3),
    Sketcher.Constraint("Horizontal", 3, 3, 4, 3),
    Sketcher.Constraint("Horizontal", 2, 3, 5, 3),
    Sketcher.Constraint("Horizontal", 4, 3, 6, 3),
    Sketcher.Constraint("Horizontal", 5, 3, 7, 3),
    Sketcher.Constraint("Horizontal", 6, 3, 8, 3),
    Sketcher.Constraint("Horizontal", 7, 3, 9, 3),
    Sketcher.Constraint("Horizontal", 8, 3, 10, 3),
    Sketcher.Constraint("Horizontal", 9, 3, 11, 3),
    Sketcher.Constraint("Horizontal", 10, 3, 12, 3),
    Sketcher.Constraint("Horizontal", 11, 3, 13, 3),
    Sketcher.Constraint("Horizontal", 13, 3, 14, 3),
    Sketcher.Constraint("Diameter", 8, Q("0.2 in")),
    Sketcher.Constraint("Diameter", 0, Q("0.29 in")),
    Sketcher.Constraint("Diameter", 1, Q("0.28 in")),
    Sketcher.Constraint("Diameter", 2, Q("0.27 in")),
    Sketcher.Constraint("Diameter", 3, Q("0.26 in")),
    Sketcher.Constraint("Diameter", 4, Q("0.24 in")),
    Sketcher.Constraint("Diameter", 5, Q("0.25 in")),
    Sketcher.Constraint("Diameter", 6, Q("0.22 in")),
    Sketcher.Constraint("Diameter", 7, Q("0.23 in")),
    Sketcher.Constraint("Diameter", 9, Q("0.21 in")),
    Sketcher.Constraint("Diameter", 10, Q("0.18 in")),
    Sketcher.Constraint("Diameter", 11, Q("0.19 in")),
    Sketcher.Constraint("Diameter", 12, Q("0.16 in")),
    Sketcher.Constraint("Diameter", 13, Q("0.17 in")),
    Sketcher.Constraint("Diameter", 14, Q("0.15 in")),
    Sketcher.Constraint("DistanceX", -1, 1, 3, 3, Q("1 in")),
    Sketcher.Constraint("DistanceX", -1, 1, 6, 3, Q("2 in")),
    Sketcher.Constraint("DistanceX", 1, 3, 4, 3, Q("1 in")),
    Sketcher.Constraint("DistanceX", 0, 3, 5, 3, Q("1 in")),
    Sketcher.Constraint("DistanceX", 2, 3, 7, 3, Q("1 in")),
    Sketcher.Constraint("DistanceX", 4, 3, 8, 3, Q("1 in")),
    Sketcher.Constraint("DistanceX", 5, 3, 9, 3, Q("1 in")),
    Sketcher.Constraint("DistanceX", 9, 3, 12, 3, Q("1 in")),
    Sketcher.Constraint("DistanceX", 8, 3, 14, 3, Q("1 in")),
    Sketcher.Constraint("DistanceX", -1, 1, 0, 3, Q("0.3 in")),
    Sketcher.Constraint("DistanceY", -1, 1, 0, 3, Q("4.2 in")),
    Sketcher.Constraint("DistanceX", -1, 1, 1, 3, Q("0.5 in")),
    Sketcher.Constraint("DistanceY", -1, 1, 1, 3, Q("4.6 in")),
    Sketcher.Constraint("DistanceX", -1, 1, 2, 3, Q("0.8 in")),
    Sketcher.Constraint("DistanceX", -1, 1, 10, 3, Q("2.9 in")),
    Sketcher.Constraint("DistanceX", -1, 1, 11, 3, Q("2.7 in")),
    Sketcher.Constraint("DistanceX", -1, 1, 13, 3, Q("3.1 in")),
])
pad14 = doc.addObject("PartDesign::Pad", "Pad013")
body.addObject(pad14)
pad14.Profile = sketch18
pad14.Length = Q("0.438 in")

# Sketch on XY plane
sketch19 = doc.addObject("Sketcher::SketchObject", "Sketch018")
body.addObject(sketch19)
sketch19.AttachmentSupport = (doc.XY_Plane, [""])
sketch19.MapMode = "FlatFace"
sketch19.addGeometry([
    Part.Circle(V(106.68, 10.16, 0), V(0, 0, 1), 1.8415),  # 0
    Part.Circle(V(114.3, 10.16, 0), V(0, 0, 1), 1.778),  # 1
    Part.Circle(V(106.68, 20.32, 0), V(0, 0, 1), 1.7145),  # 2
    Part.Circle(V(114.3, 20.32, 0), V(0, 0, 1), 1.651),  # 3
    Part.Circle(V(106.68, 30.48, 0), V(0, 0, 1), 1.5875),  # 4
    Part.Circle(V(114.3, 30.48, 0), V(0, 0, 1), 1.524),  # 5
    Part.Circle(V(106.68, 40.64, 0), V(0, 0, 1), 1.4605),  # 6
    Part.Circle(V(114.3, 40.64, 0), V(0, 0, 1), 1.397),  # 7
    Part.Circle(V(106.68, 50.8, 0), V(0, 0, 1), 1.3335),  # 8
    Part.Circle(V(114.3, 50.8, 0), V(0, 0, 1), 1.27),  # 9
    Part.Circle(V(106.68, 60.96, 0), V(0, 0, 1), 1.2065),  # 10
    Part.Circle(V(114.3, 60.96, 0), V(0, 0, 1), 1.143),  # 11
    Part.Circle(V(106.68, 71.12, 0), V(0, 0, 1), 1.0795),  # 12
    Part.Circle(V(114.3, 71.12, 0), V(0, 0, 1), 1.016),  # 13
    Part.Circle(V(106.68, 81.28, 0), V(0, 0, 1), 0.9525),  # 14
    Part.Circle(V(114.3, 81.28, 0), V(0, 0, 1), 0.889),  # 15
    Part.Circle(V(106.68, 91.44, 0), V(0, 0, 1), 0.8255),  # 16
    Part.Circle(V(114.3, 91.44, 0), V(0, 0, 1), 0.762),  # 17
    Part.Circle(V(106.68, 101.6, 0), V(0, 0, 1), 0.6985),  # 18
    Part.Circle(V(114.3, 101.6, 0), V(0, 0, 1), 0.635),  # 19
    Part.Circle(V(106.68, 111.76, 0), V(0, 0, 1), 0.5715),  # 20
    Part.Circle(V(114.3, 111.76, 0), V(0, 0, 1), 0.508),  # 21
], False)
sketch19.addConstraint([
    Sketcher.Constraint("Horizontal", 0, 3, 1, 3),
    Sketcher.Constraint("Horizontal", 2, 3, 3, 3),
    Sketcher.Constraint("Horizontal", 4, 3, 5, 3),
    Sketcher.Constraint("Horizontal", 6, 3, 7, 3),
    Sketcher.Constraint("Horizontal", 8, 3, 9, 3),
    Sketcher.Constraint("Horizontal", 10, 3, 11, 3),
    Sketcher.Constraint("Horizontal", 12, 3, 13, 3),
    Sketcher.Constraint("Horizontal", 14, 3, 15, 3),
    Sketcher.Constraint("Horizontal", 16, 3, 17, 3),
    Sketcher.Constraint("Horizontal", 18, 3, 19, 3),
    Sketcher.Constraint("Horizontal", 20, 3, 21, 3),
    Sketcher.Constraint("Vertical", 0, 3, 2, 3),
    Sketcher.Constraint("Vertical", 1, 3, 3, 3),
    Sketcher.Constraint("Vertical", 2, 3, 4, 3),
    Sketcher.Constraint("Vertical", 3, 3, 5, 3),
    Sketcher.Constraint("Vertical", 4, 3, 6, 3),
    Sketcher.Constraint("Vertical", 5, 3, 7, 3),
    Sketcher.Constraint("Vertical", 6, 3, 8, 3),
    Sketcher.Constraint("Vertical", 7, 3, 9, 3),
    Sketcher.Constraint("Vertical", 8, 3, 10, 3),
    Sketcher.Constraint("Vertical", 9, 3, 11, 3),
    Sketcher.Constraint("Vertical", 10, 3, 12, 3),
    Sketcher.Constraint("Vertical", 11, 3, 13, 3),
    Sketcher.Constraint("Vertical", 12, 3, 14, 3),
    Sketcher.Constraint("Vertical", 13, 3, 15, 3),
    Sketcher.Constraint("Vertical", 14, 3, 16, 3),
    Sketcher.Constraint("Vertical", 15, 3, 17, 3),
    Sketcher.Constraint("Vertical", 16, 3, 18, 3),
    Sketcher.Constraint("Vertical", 17, 3, 19, 3),
    Sketcher.Constraint("Vertical", 18, 3, 20, 3),
    Sketcher.Constraint("Vertical", 19, 3, 21, 3),
    Sketcher.Constraint("Diameter", 9, Q("0.1 in")),
    Sketcher.Constraint("Diameter", 1, Q("0.14 in")),
    Sketcher.Constraint("Diameter", 3, Q("0.13 in")),
    Sketcher.Constraint("Diameter", 5, Q("0.12 in")),
    Sketcher.Constraint("Diameter", 7, Q("0.11 in")),
    Sketcher.Constraint("Diameter", 11, Q("0.09 in")),
    Sketcher.Constraint("Diameter", 13, Q("0.08 in")),
    Sketcher.Constraint("Diameter", 15, Q("0.07 in")),
    Sketcher.Constraint("Diameter", 17, Q("0.06 in")),
    Sketcher.Constraint("Diameter", 19, Q("0.05 in")),
    Sketcher.Constraint("Diameter", 21, Q("0.04 in")),
    Sketcher.Constraint("Diameter", 0, Q("0.145 in")),
    Sketcher.Constraint("Diameter", 2, Q("0.135 in")),
    Sketcher.Constraint("Diameter", 4, Q("0.125 in")),
    Sketcher.Constraint("Diameter", 6, Q("0.115 in")),
    Sketcher.Constraint("Diameter", 8, Q("0.105 in")),
    Sketcher.Constraint("Diameter", 10, Q("0.095 in")),
    Sketcher.Constraint("Diameter", 12, Q("0.085 in")),
    Sketcher.Constraint("Diameter", 14, Q("0.075 in")),
    Sketcher.Constraint("Diameter", 16, Q("0.065 in")),
    Sketcher.Constraint("Diameter", 18, Q("0.055 in")),
    Sketcher.Constraint("Diameter", 20, Q("0.045 in")),
    Sketcher.Constraint("DistanceY", -1, 1, 8, 3, Q("2 in")),
    Sketcher.Constraint("DistanceY", -1, 1, 18, 3, Q("4 in")),
    Sketcher.Constraint("DistanceX", -1, 1, 0, 3, Q("4.2 in")),
    Sketcher.Constraint("DistanceY", -1, 1, 0, 3, Q("0.4 in")),
    Sketcher.Constraint("DistanceX", -1, 1, 1, 3, Q("4.5 in")),
    Sketcher.Constraint("DistanceY", -1, 1, 2, 3, Q("0.8 in")),
    Sketcher.Constraint("DistanceY", -1, 1, 4, 3, Q("1.2 in")),
    Sketcher.Constraint("DistanceY", -1, 1, 6, 3, Q("1.6 in")),
    Sketcher.Constraint("DistanceY", -1, 1, 10, 3, Q("2.4 in")),
    Sketcher.Constraint("DistanceY", -1, 1, 12, 3, Q("2.8 in")),
    Sketcher.Constraint("DistanceY", -1, 1, 14, 3, Q("3.2 in")),
    Sketcher.Constraint("DistanceY", -1, 1, 16, 3, Q("3.6 in")),
    Sketcher.Constraint("DistanceY", -1, 1, 20, 3, Q("4.4 in")),
])
pocket5 = doc.addObject("PartDesign::Pocket", "Pocket004")
body.addObject(pocket5)
pocket5.Profile = sketch19
pocket5.Type = "ThroughAll"
pocket5.Reversed = True

# Sketch on XY plane
sketch20 = doc.addObject("Sketcher::SketchObject", "Sketch019")
body.addObject(sketch20)
sketch20.AttachmentSupport = (doc.XY_Plane, [""])
sketch20.MapMode = "FlatFace"
sketch20.addGeometry([
    Part.Circle(V(7.62, 124.46, 0), V(0, 0, 1), 1.778),  # 0
    Part.Circle(V(7.62, 132.08, 0), V(0, 0, 1), 1.8415),  # 1
    Part.Circle(V(15.24, 132.08, 0), V(0, 0, 1), 1.7145),  # 2
    Part.Circle(V(15.24, 124.46, 0), V(0, 0, 1), 1.651),  # 3
    Part.Circle(V(22.86, 132.08, 0), V(0, 0, 1), 1.5875),  # 4
    Part.Circle(V(22.86, 124.46, 0), V(0, 0, 1), 1.524),  # 5
    Part.Circle(V(30.48, 132.08, 0), V(0, 0, 1), 1.4605),  # 6
    Part.Circle(V(30.48, 124.46, 0), V(0, 0, 1), 1.397),  # 7
    Part.Circle(V(38.1, 132.08, 0), V(0, 0, 1), 1.3335),  # 8
    Part.Circle(V(38.1, 124.46, 0), V(0, 0, 1), 1.27),  # 9
    Part.Circle(V(45.72, 132.08, 0), V(0, 0, 1), 1.2065),  # 10
    Part.Circle(V(45.72, 124.46, 0), V(0, 0, 1), 1.143),  # 11
    Part.Circle(V(53.34, 132.08, 0), V(0, 0, 1), 1.0795),  # 12
    Part.Circle(V(53.34, 124.46, 0), V(0, 0, 1), 1.016),  # 13
    Part.Circle(V(60.96, 132.08, 0), V(0, 0, 1), 0.9525),  # 14
    Part.Circle(V(60.96, 124.46, 0), V(0, 0, 1), 0.889),  # 15
    Part.Circle(V(68.58, 132.08, 0), V(0, 0, 1), 0.8255),  # 16
    Part.Circle(V(68.58, 124.46, 0), V(0, 0, 1), 0.762),  # 17
    Part.Circle(V(76.2, 132.08, 0), V(0, 0, 1), 0.6985),  # 18
    Part.Circle(V(76.2, 124.46, 0), V(0, 0, 1), 0.635),  # 19
    Part.Circle(V(83.82, 132.08, 0), V(0, 0, 1), 0.5715),  # 20
    Part.Circle(V(83.82, 124.46, 0), V(0, 0, 1), 0.508),  # 21
], False)
sketch20.addConstraint([
    Sketcher.Constraint("Horizontal", 1, 3, 2, 3),
    Sketcher.Constraint("Horizontal", 0, 3, 3, 3),
    Sketcher.Constraint("Horizontal", 2, 3, 4, 3),
    Sketcher.Constraint("Horizontal", 3, 3, 5, 3),
    Sketcher.Constraint("Horizontal", 4, 3, 6, 3),
    Sketcher.Constraint("Horizontal", 5, 3, 7, 3),
    Sketcher.Constraint("Horizontal", 6, 3, 8, 3),
    Sketcher.Constraint("Horizontal", 7, 3, 9, 3),
    Sketcher.Constraint("Horizontal", 8, 3, 10, 3),
    Sketcher.Constraint("Horizontal", 9, 3, 11, 3),
    Sketcher.Constraint("Horizontal", 10, 3, 12, 3),
    Sketcher.Constraint("Horizontal", 11, 3, 13, 3),
    Sketcher.Constraint("Horizontal", 12, 3, 14, 3),
    Sketcher.Constraint("Horizontal", 13, 3, 15, 3),
    Sketcher.Constraint("Horizontal", 14, 3, 16, 3),
    Sketcher.Constraint("Horizontal", 15, 3, 17, 3),
    Sketcher.Constraint("Horizontal", 16, 3, 18, 3),
    Sketcher.Constraint("Horizontal", 17, 3, 19, 3),
    Sketcher.Constraint("Horizontal", 18, 3, 20, 3),
    Sketcher.Constraint("Horizontal", 19, 3, 21, 3),
    Sketcher.Constraint("Vertical", 0, 3, 1, 3),
    Sketcher.Constraint("Vertical", 2, 3, 3, 3),
    Sketcher.Constraint("Vertical", 4, 3, 5, 3),
    Sketcher.Constraint("Vertical", 6, 3, 7, 3),
    Sketcher.Constraint("Vertical", 8, 3, 9, 3),
    Sketcher.Constraint("Vertical", 10, 3, 11, 3),
    Sketcher.Constraint("Vertical", 12, 3, 13, 3),
    Sketcher.Constraint("Vertical", 14, 3, 15, 3),
    Sketcher.Constraint("Vertical", 16, 3, 17, 3),
    Sketcher.Constraint("Vertical", 18, 3, 19, 3),
    Sketcher.Constraint("Vertical", 20, 3, 21, 3),
    Sketcher.Constraint("Diameter", 9, Q("0.1 in")),
    Sketcher.Constraint("Diameter", 0, Q("0.14 in")),
    Sketcher.Constraint("Diameter", 3, Q("0.13 in")),
    Sketcher.Constraint("Diameter", 5, Q("0.12 in")),
    Sketcher.Constraint("Diameter", 7, Q("0.11 in")),
    Sketcher.Constraint("Diameter", 11, Q("0.09 in")),
    Sketcher.Constraint("Diameter", 13, Q("0.08 in")),
    Sketcher.Constraint("Diameter", 15, Q("0.07 in")),
    Sketcher.Constraint("Diameter", 17, Q("0.06 in")),
    Sketcher.Constraint("Diameter", 19, Q("0.05 in")),
    Sketcher.Constraint("Diameter", 21, Q("0.04 in")),
    Sketcher.Constraint("Diameter", 1, Q("0.145 in")),
    Sketcher.Constraint("Diameter", 2, Q("0.135 in")),
    Sketcher.Constraint("Diameter", 4, Q("0.125 in")),
    Sketcher.Constraint("Diameter", 6, Q("0.115 in")),
    Sketcher.Constraint("Diameter", 8, Q("0.105 in")),
    Sketcher.Constraint("Diameter", 10, Q("0.095 in")),
    Sketcher.Constraint("Diameter", 12, Q("0.085 in")),
    Sketcher.Constraint("Diameter", 14, Q("0.075 in")),
    Sketcher.Constraint("Diameter", 16, Q("0.065 in")),
    Sketcher.Constraint("Diameter", 18, Q("0.055 in")),
    Sketcher.Constraint("Diameter", 20, Q("0.045 in")),
    Sketcher.Constraint("DistanceX", -1, 1, 18, 3, Q("3 in")),
    Sketcher.Constraint("DistanceX", -1, 1, 0, 3, Q("0.3 in")),
    Sketcher.Constraint("DistanceY", -1, 1, 0, 3, Q("4.9 in")),
    Sketcher.Constraint("DistanceY", -1, 1, 1, 3, Q("5.2 in")),
    Sketcher.Constraint("DistanceX", -1, 1, 2, 3, Q("0.6 in")),
    Sketcher.Constraint("DistanceX", -1, 1, 4, 3, Q("0.9 in")),
    Sketcher.Constraint("DistanceX", -1, 1, 6, 3, Q("1.2 in")),
    Sketcher.Constraint("DistanceX", -1, 1, 8, 3, Q("1.5 in")),
    Sketcher.Constraint("DistanceX", -1, 1, 10, 3, Q("1.8 in")),
    Sketcher.Constraint("DistanceX", -1, 1, 12, 3, Q("2.1 in")),
    Sketcher.Constraint("DistanceX", -1, 1, 14, 3, Q("2.4 in")),
    Sketcher.Constraint("DistanceX", -1, 1, 16, 3, Q("2.7 in")),
    Sketcher.Constraint("DistanceX", -1, 1, 20, 3, Q("3.3 in")),
])
pad15 = doc.addObject("PartDesign::Pad", "Pad014")
body.addObject(pad15)
pad15.Profile = sketch20
pad15.Length = Q("0.375 in")

doc.recompute()
